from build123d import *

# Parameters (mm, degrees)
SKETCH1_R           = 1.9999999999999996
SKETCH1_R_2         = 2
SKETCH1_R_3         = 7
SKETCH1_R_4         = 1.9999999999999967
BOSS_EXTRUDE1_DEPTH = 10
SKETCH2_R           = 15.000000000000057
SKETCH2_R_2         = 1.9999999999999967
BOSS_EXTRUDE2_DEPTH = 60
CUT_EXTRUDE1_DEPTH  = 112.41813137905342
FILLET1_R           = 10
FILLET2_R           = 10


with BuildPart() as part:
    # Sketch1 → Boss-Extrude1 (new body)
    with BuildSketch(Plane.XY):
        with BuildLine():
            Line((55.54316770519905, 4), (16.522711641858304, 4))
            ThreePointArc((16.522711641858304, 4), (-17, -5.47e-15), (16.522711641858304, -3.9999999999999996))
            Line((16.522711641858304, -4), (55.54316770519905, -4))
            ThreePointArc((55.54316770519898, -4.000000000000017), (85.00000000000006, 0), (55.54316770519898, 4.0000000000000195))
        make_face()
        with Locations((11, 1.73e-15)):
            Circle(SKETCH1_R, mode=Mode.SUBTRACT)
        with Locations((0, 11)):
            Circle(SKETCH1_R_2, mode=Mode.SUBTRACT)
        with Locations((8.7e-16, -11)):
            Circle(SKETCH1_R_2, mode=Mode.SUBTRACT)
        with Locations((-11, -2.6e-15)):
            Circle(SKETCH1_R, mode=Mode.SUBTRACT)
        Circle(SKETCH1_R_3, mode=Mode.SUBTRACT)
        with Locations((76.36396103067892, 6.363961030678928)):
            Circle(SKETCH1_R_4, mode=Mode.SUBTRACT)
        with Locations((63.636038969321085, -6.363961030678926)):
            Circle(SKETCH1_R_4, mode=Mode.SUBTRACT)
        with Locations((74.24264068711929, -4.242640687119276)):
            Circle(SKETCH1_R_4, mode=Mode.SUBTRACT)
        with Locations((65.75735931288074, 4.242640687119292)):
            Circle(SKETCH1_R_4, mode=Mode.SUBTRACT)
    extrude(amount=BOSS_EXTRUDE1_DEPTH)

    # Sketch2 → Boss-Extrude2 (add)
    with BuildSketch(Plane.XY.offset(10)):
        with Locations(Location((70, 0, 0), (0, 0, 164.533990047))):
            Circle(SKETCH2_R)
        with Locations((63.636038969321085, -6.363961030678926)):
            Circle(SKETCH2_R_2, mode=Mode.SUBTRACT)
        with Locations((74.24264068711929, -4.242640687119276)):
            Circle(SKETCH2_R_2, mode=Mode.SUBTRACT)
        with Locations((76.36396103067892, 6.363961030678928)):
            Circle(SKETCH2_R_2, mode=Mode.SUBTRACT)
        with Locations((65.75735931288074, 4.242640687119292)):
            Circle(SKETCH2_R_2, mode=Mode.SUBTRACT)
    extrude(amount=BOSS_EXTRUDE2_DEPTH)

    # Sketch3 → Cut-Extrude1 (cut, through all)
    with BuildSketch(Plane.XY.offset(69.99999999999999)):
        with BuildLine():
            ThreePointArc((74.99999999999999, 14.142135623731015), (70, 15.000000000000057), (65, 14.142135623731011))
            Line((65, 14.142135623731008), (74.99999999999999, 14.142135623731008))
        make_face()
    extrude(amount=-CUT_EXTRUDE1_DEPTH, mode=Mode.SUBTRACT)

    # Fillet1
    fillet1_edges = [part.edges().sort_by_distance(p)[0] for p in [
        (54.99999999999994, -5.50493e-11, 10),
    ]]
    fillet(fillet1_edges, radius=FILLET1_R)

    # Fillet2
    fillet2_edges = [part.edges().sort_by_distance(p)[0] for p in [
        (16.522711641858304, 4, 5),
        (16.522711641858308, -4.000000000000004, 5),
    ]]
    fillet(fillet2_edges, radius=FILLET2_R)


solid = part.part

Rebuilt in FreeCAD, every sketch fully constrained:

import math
import FreeCAD as App
import Part
import Sketcher
from FreeCAD import Vector
Q = App.Units.Quantity


def edges_at(feature, points):
    """Names of the edges that pass closest to the given points."""
    edges = feature.Shape.Edges
    near = lambda p: min(range(len(edges)), key=lambda i: edges[i].distToShape(Part.Vertex(*p))[0])
    return sorted({f"Edge{near(p) + 1}" for p in points})

doc = App.newDocument("Part")
params = doc.addObject("Spreadsheet::Sheet", "Params")
for row, (alias, value) in enumerate([
    ("sketch1_diameter", "4 mm"),
    ("sketch1_diameter2", "14 mm"),
    ("sketch1_radius", "17 mm"),
    ("sketch1_radius2", "15 mm"),
    ("pad1_length", "10 mm"),
    ("sketch2_diameter", "30 mm"),
    ("sketch2_diameter2", "4 mm"),
    ("pad2_length", "60 mm"),
    ("sketch3_radius", "15 mm"),
    ("sketch3_width", "10 mm"),
    ("fillet_radius", "10 mm"),
    ("fillet2_radius", "10 mm"),
], start=1):
    params.set(f"A{row}", alias)
    params.set(f"B{row}", "=" + value)
    params.setAlias(f"B{row}", alias)

body = doc.addObject("PartDesign::Body", "Body")

sketch1 = body.newObject("Sketcher::SketchObject", "Sketch")
sketch1.AttachmentSupport = (doc.getObject("XY_Plane"), [""])
sketch1.MapMode = "FlatFace"
sketch1.addGeometry([
    Part.LineSegment(Vector(55.543168, 4, 0), Vector(16.522712, 4, 0)),
    Part.ArcOfCircle(Part.Circle(Vector(0, 0, 0), Vector(0, 0, 1), 17), math.radians(13.608961), math.radians(346.391039)),
    Part.LineSegment(Vector(16.522712, -4, 0), Vector(55.543168, -4, 0)),
    Part.ArcOfCircle(Part.Circle(Vector(70, 0, 0), Vector(0, 0, 1), 15), math.radians(-164.53399), math.radians(164.53399)),
    Part.Circle(Vector(0, -11, 0), Vector(0, 0, 1), 2),
    Part.Circle(Vector(-11, 0, 0), Vector(0, 0, 1), 2),
    Part.Circle(Vector(63.636039, -6.363961, 0), Vector(0, 0, 1), 2),
    Part.Circle(Vector(74.242641, -4.242641, 0), Vector(0, 0, 1), 2),
    Part.Circle(Vector(0, 0, 0), Vector(0, 0, 1), 7),
    Part.Circle(Vector(11, 0, 0), Vector(0, 0, 1), 2),
    Part.Circle(Vector(0, 11, 0), Vector(0, 0, 1), 2),
    Part.Circle(Vector(65.757359, 4.242641, 0), Vector(0, 0, 1), 2),
    Part.Circle(Vector(76.363961, 6.363961, 0), Vector(0, 0, 1), 2),
], False)
sketch1.addConstraint([
    Sketcher.Constraint("Coincident", 0, 2, 1, 1),
    Sketcher.Constraint("Coincident", 1, 2, 2, 1),
    Sketcher.Constraint("Coincident", 2, 2, 3, 1),
    Sketcher.Constraint("Coincident", 3, 2, 0, 1),
    Sketcher.Constraint("Horizontal", 0),
    Sketcher.Constraint("Horizontal", 2),
    Sketcher.Constraint("Coincident", 1, 3, -1, 1),
    Sketcher.Constraint("Coincident", 8, 3, -1, 1),
    Sketcher.Constraint("Equal", 4, 5),
    Sketcher.Constraint("Equal", 5, 6),
    Sketcher.Constraint("Equal", 6, 7),
    Sketcher.Constraint("Equal", 7, 9),
    Sketcher.Constraint("Equal", 9, 10),
    Sketcher.Constraint("Equal", 10, 11),
    Sketcher.Constraint("Equal", 11, 12),
    Sketcher.Constraint("Symmetric", 5, 3, 9, 3, -1, 1),
    Sketcher.Constraint("Symmetric", 4, 3, 10, 3, -1, 1),
    Sketcher.Constraint("Symmetric", 2, 2, 3, 2, -1),
    Sketcher.Constraint("PointOnObject", 4, 3, -2),
    Sketcher.Constraint("PointOnObject", 5, 3, -1),
    Sketcher.Constraint("Diameter", 4, Q("4 mm")),
    Sketcher.Constraint("Diameter", 8, Q("14 mm")),
    Sketcher.Constraint("Radius", 1, Q("17 mm")),
    Sketcher.Constraint("Radius", 3, Q("15 mm")),
    Sketcher.Constraint("DistanceX", -1, 1, 3, 3, Q("70 mm")),
    Sketcher.Constraint("DistanceY", 4, 3, -1, 1, Q("11 mm")),
    Sketcher.Constraint("DistanceX", 5, 3, -1, 1, Q("11 mm")),
    Sketcher.Constraint("DistanceY", -1, 1, 0, 2, Q("4 mm")),
    Sketcher.Constraint("DistanceX", 6, 3, 7, 3, Q("10.606602 mm")),
    Sketcher.Constraint("DistanceY", 6, 3, 11, 3, Q("10.606602 mm")),
    Sketcher.Constraint("DistanceY", 7, 3, 12, 3, Q("10.606602 mm")),
    Sketcher.Constraint("DistanceX", 11, 3, 12, 3, Q("10.606602 mm")),
    Sketcher.Constraint("DistanceX", -1, 1, 6, 3, Q("63.636039 mm")),
    Sketcher.Constraint("DistanceY", 6, 3, -1, 1, Q("6.363961 mm")),
    Sketcher.Constraint("DistanceY", 7, 3, -1, 1, Q("4.242641 mm")),
    Sketcher.Constraint("DistanceX", -1, 1, 11, 3, Q("65.757359 mm")),
])
sketch1.setExpression("Constraints[20]", "Params.sketch1_diameter")
sketch1.setExpression("Constraints[21]", "Params.sketch1_diameter2")
sketch1.setExpression("Constraints[22]", "Params.sketch1_radius")
sketch1.setExpression("Constraints[23]", "Params.sketch1_radius2")
pad1 = body.newObject("PartDesign::Pad", "Pad")
pad1.Profile = sketch1
pad1.setExpression("Length", "Params.pad1_length")

sketch2 = body.newObject("Sketcher::SketchObject", "Sketch001")
sketch2.AttachmentSupport = (doc.getObject("XY_Plane"), [""])
sketch2.MapMode = "FlatFace"
sketch2.AttachmentOffset = App.Placement(Vector(0, 0, 10), App.Rotation())
sketch2.addGeometry([
    Part.Circle(Vector(70, 0, 0), Vector(0, 0, 1), 15),
    Part.Circle(Vector(76.363961, 6.363961, 0), Vector(0, 0, 1), 2),
    Part.Circle(Vector(65.757359, 4.242641, 0), Vector(0, 0, 1), 2),
    Part.Circle(Vector(74.242641, -4.242641, 0), Vector(0, 0, 1), 2),
    Part.Circle(Vector(63.636039, -6.363961, 0), Vector(0, 0, 1), 2),
], False)
sketch2.addConstraint([
    Sketcher.Constraint("Equal", 1, 2),
    Sketcher.Constraint("Equal", 2, 3),
    Sketcher.Constraint("Equal", 3, 4),
    Sketcher.Constraint("PointOnObject", 0, 3, -1),
    Sketcher.Constraint("Diameter", 0, Q("30 mm")),
    Sketcher.Constraint("Diameter", 1, Q("4 mm")),
    Sketcher.Constraint("DistanceX", -1, 1, 0, 3, Q("70 mm")),
    Sketcher.Constraint("DistanceX", 2, 3, 1, 3, Q("10.606602 mm")),
    Sketcher.Constraint("DistanceY", 3, 3, 1, 3, Q("10.606602 mm")),
    Sketcher.Constraint("DistanceY", 4, 3, 2, 3, Q("10.606602 mm")),
    Sketcher.Constraint("DistanceX", 4, 3, 3, 3, Q("10.606602 mm")),
    Sketcher.Constraint("DistanceX", -1, 1, 1, 3, Q("76.363961 mm")),
    Sketcher.Constraint("DistanceY", -1, 1, 1, 3, Q("6.363961 mm")),
    Sketcher.Constraint("DistanceY", -1, 1, 2, 3, Q("4.242641 mm")),
    Sketcher.Constraint("DistanceX", -1, 1, 3, 3, Q("74.242641 mm")),
])
sketch2.setExpression("Constraints[4]", "Params.sketch2_diameter")
sketch2.setExpression("Constraints[5]", "Params.sketch2_diameter2")
pad2 = body.newObject("PartDesign::Pad", "Pad001")
pad2.Profile = sketch2
pad2.setExpression("Length", "Params.pad2_length")

sketch3 = body.newObject("Sketcher::SketchObject", "Sketch002")
sketch3.AttachmentSupport = (doc.getObject("XY_Plane"), [""])
sketch3.MapMode = "FlatFace"
sketch3.AttachmentOffset = App.Placement(Vector(0, 0, 70), App.Rotation())
sketch3.addGeometry([
    Part.ArcOfCircle(Part.Circle(Vector(70, 0, 0), Vector(0, 0, 1), 15), math.radians(70.528779), math.radians(109.471221)),
    Part.LineSegment(Vector(65, 14.142136, 0), Vector(75, 14.142136, 0)),
], False)
sketch3.addConstraint([
    Sketcher.Constraint("Coincident", 0, 1, 1, 2),
    Sketcher.Constraint("Coincident", 1, 1, 0, 2),
    Sketcher.Constraint("Horizontal", 1),
    Sketcher.Constraint("PointOnObject", 0, 3, -1),
    Sketcher.Constraint("Radius", 0, Q("15 mm")),
    Sketcher.Constraint("DistanceX", 1, 1, 1, 2, Q("10 mm")),
    Sketcher.Constraint("DistanceX", -1, 1, 0, 3, Q("70 mm")),
])
sketch3.setExpression("Constraints[4]", "Params.sketch3_radius")
sketch3.setExpression("Constraints[5]", "Params.sketch3_width")
pocket1 = body.newObject("PartDesign::Pocket", "Pocket")
pocket1.Profile = sketch3
pocket1.Type = "ThroughAll"
doc.recompute()

fillet = body.newObject("PartDesign::Fillet", "Fillet")
fillet.Base = (pocket1, edges_at(pocket1, [(55, 0, 10)]))
fillet.setExpression("Radius", "Params.fillet_radius")
doc.recompute()

fillet2 = body.newObject("PartDesign::Fillet", "Fillet001")
fillet2.Base = (fillet, edges_at(fillet, [(16.523, 4, 5), (16.523, -4, 5)]))
fillet2.setExpression("Radius", "Params.fillet2_radius")

doc.recompute()
